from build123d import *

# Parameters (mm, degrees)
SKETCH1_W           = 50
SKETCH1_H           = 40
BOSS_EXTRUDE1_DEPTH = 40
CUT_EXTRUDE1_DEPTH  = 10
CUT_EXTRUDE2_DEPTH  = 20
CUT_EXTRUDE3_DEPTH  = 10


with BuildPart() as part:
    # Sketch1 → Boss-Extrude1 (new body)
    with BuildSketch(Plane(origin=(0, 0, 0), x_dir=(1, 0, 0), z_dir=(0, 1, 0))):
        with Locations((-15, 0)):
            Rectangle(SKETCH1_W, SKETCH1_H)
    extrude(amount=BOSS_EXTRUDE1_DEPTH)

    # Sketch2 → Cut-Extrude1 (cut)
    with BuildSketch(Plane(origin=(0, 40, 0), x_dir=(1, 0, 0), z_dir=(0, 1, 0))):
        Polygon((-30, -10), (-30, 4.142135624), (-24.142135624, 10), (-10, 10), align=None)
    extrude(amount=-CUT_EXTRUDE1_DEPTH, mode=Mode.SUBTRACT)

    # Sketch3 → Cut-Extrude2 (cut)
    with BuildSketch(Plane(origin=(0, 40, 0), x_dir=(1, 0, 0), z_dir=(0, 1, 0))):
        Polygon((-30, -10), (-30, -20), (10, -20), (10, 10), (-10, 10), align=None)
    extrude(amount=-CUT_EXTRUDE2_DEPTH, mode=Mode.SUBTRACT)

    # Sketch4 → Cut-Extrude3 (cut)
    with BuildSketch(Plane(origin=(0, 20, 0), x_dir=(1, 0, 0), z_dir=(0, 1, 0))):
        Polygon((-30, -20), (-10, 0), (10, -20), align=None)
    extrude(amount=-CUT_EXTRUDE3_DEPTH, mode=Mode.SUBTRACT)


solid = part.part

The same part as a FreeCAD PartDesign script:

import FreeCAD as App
import Part
import Sketcher
Q = App.Units.Quantity


def add_polygon(sketch, points):
    """Adds a closed chain of lines whose ends are joined by coincident constraints."""
    first, n = sketch.GeometryCount, len(points)
    for a, b in zip(points, points[1:] + points[:1]):
        sketch.addGeometry(Part.LineSegment(App.Vector(*a, 0), App.Vector(*b, 0)), False)
    for i in range(n):
        sketch.addConstraint(Sketcher.Constraint("Coincident", first + i, 2, first + (i + 1) % n, 1))

doc = App.newDocument("Part")
params = doc.addObject("Spreadsheet::Sheet", "Params")
for row, (alias, value) in enumerate([
    ("sketch1_width", "50 mm"),
    ("sketch1_height", "40 mm"),
    ("pad1_length", "40 mm"),
    ("pocket1_length", "10 mm"),
    ("sketch3_width", "40 mm"),
    ("sketch3_width2", "20 mm"),
    ("sketch3_height", "10 mm"),
    ("sketch3_height2", "30 mm"),
    ("pocket2_length", "20 mm"),
    ("sketch4_width", "40 mm"),
    ("pocket3_length", "10 mm"),
], start=1):
    params.set(f"A{row}", alias)
    params.set(f"B{row}", "=" + value)
    params.setAlias(f"B{row}", alias)

body = doc.addObject("PartDesign::Body", "Body")

sketch1 = doc.addObject("Sketcher::SketchObject", "Sketch")
body.addObject(sketch1)
sketch1.AttachmentSupport = (doc.XZ_Plane, [""])
sketch1.MapMode = "FlatFace"
add_polygon(sketch1, [(-40, -20), (-40, 20), (10, 20), (10, -20)])
sketch1.addConstraint([
    Sketcher.Constraint("Vertical", 0),
    Sketcher.Constraint("Horizontal", 1),
    Sketcher.Constraint("Vertical", 2),
    Sketcher.Constraint("Horizontal", 3),
    Sketcher.Constraint("DistanceX", 1, 1, 1, 2, Q("50 mm")),
    Sketcher.Constraint("DistanceY", 0, 1, 0, 2, Q("40 mm")),
    Sketcher.Constraint("DistanceX", 0, 2, -1, 1, Q("40 mm")),
    Sketcher.Constraint("DistanceY", -1, 1, 0, 2, Q("20 mm")),
])
sketch1.setExpression("Constraints[8]", "Params.sketch1_width")
sketch1.setExpression("Constraints[9]", "Params.sketch1_height")
pad1 = doc.addObject("PartDesign::Pad", "Pad")
body.addObject(pad1)
pad1.Profile = sketch1
pad1.setExpression("Length", "Params.pad1_length")
pad1.Reversed = True

sketch2 = doc.addObject("Sketcher::SketchObject", "Sketch001")
body.addObject(sketch2)
sketch2.AttachmentSupport = (doc.XZ_Plane, [""])
sketch2.MapMode = "FlatFace"
sketch2.AttachmentOffset = App.Placement(App.Vector(0, 0, -40), App.Rotation())
add_polygon(sketch2, [(-30, -4), (-30, 10), (-10, -10), (-24, -10)])
sketch2.addConstraint([
    Sketcher.Constraint("Vertical", 0),
    Sketcher.Constraint("Horizontal", 2),
    Sketcher.Constraint("Parallel", 1, 3),
    Sketcher.Constraint("Equal", 2, 0),
    Sketcher.Constraint("DistanceX", 0, 2, -1, 1, Q("30 mm")),
    Sketcher.Constraint("DistanceY", -1, 1, 0, 2, Q("10 mm")),
    Sketcher.Constraint("DistanceX", 1, 2, -1, 1, Q("10 mm")),
    Sketcher.Constraint("Distance", 3, Q("8.284271 mm")),
])
pocket1 = doc.addObject("PartDesign::Pocket", "Pocket")
body.addObject(pocket1)
pocket1.Profile = sketch2
pocket1.setExpression("Length", "Params.pocket1_length")
pocket1.Reversed = True

sketch3 = doc.addObject("Sketcher::SketchObject", "Sketch002")
body.addObject(sketch3)
sketch3.AttachmentSupport = (doc.XZ_Plane, [""])
sketch3.MapMode = "FlatFace"
sketch3.AttachmentOffset = App.Placement(App.Vector(0, 0, -40), App.Rotation())
add_polygon(sketch3, [(-30, 10), (-30, 20), (10, 20), (10, -10), (-10, -10)])
sketch3.addConstraint([
    Sketcher.Constraint("Vertical", 0),
    Sketcher.Constraint("Horizontal", 1),
    Sketcher.Constraint("Vertical", 2),
    Sketcher.Constraint("Horizontal", 3),
    Sketcher.Constraint("DistanceX", 1, 1, 1, 2, Q("40 mm")),
    Sketcher.Constraint("DistanceX", 3, 2, 3, 1, Q("20 mm")),
    Sketcher.Constraint("DistanceY", 0, 1, 0, 2, Q("10 mm")),
    Sketcher.Constraint("DistanceY", 2, 2, 2, 1, Q("30 mm")),
    Sketcher.Constraint("DistanceX", 0, 2, -1, 1, Q("30 mm")),
    Sketcher.Constraint("DistanceY", -1, 1, 0, 2, Q("20 mm")),
])
sketch3.setExpression("Constraints[9]", "Params.sketch3_width")
sketch3.setExpression("Constraints[10]", "Params.sketch3_width2")
sketch3.setExpression("Constraints[11]", "Params.sketch3_height")
sketch3.setExpression("Constraints[12]", "Params.sketch3_height2")
pocket2 = doc.addObject("PartDesign::Pocket", "Pocket001")
body.addObject(pocket2)
pocket2.Profile = sketch3
pocket2.setExpression("Length", "Params.pocket2_length")
pocket2.Reversed = True

sketch4 = doc.addObject("Sketcher::SketchObject", "Sketch003")
body.addObject(sketch4)
sketch4.AttachmentSupport = (doc.XZ_Plane, [""])
sketch4.MapMode = "FlatFace"
sketch4.AttachmentOffset = App.Placement(App.Vector(0, 0, -20), App.Rotation())
add_polygon(sketch4, [(-10, 0), (-30, 20), (10, 20)])
sketch4.addConstraint([
    Sketcher.Constraint("Horizontal", 1),
    Sketcher.Constraint("PointOnObject", 2, 2, -1),
    Sketcher.Constraint("Perpendicular", 0, 2),
    Sketcher.Constraint("Equal", 0, 2),
    Sketcher.Constraint("DistanceX", 1, 1, 1, 2, Q("40 mm")),
    Sketcher.Constraint("DistanceX", 0, 2, -1, 1, Q("30 mm")),
])
sketch4.setExpression("Constraints[7]", "Params.sketch4_width")
pocket3 = doc.addObject("PartDesign::Pocket", "Pocket002")
body.addObject(pocket3)
pocket3.Profile = sketch4
pocket3.setExpression("Length", "Params.pocket3_length")
pocket3.Reversed = True

doc.recompute()
